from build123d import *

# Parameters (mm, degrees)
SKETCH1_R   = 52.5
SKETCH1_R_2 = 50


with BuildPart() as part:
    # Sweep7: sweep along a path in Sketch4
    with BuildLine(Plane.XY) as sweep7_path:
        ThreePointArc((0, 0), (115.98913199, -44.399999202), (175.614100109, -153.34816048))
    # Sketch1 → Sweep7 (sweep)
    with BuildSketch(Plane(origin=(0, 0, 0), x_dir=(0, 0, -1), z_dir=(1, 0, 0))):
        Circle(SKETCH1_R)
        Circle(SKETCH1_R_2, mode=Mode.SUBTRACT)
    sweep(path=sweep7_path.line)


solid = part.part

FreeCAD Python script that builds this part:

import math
import FreeCAD as App
import Part
import Sketcher
from FreeCAD import Vector
Q = App.Units.Quantity

doc = App.newDocument("Part")
body = doc.addObject("PartDesign::Body", "Body")

# Sketch on YZ plane
sketch1 = doc.addObject("Sketcher::SketchObject", "Sketch")
body.addObject(sketch1)
sketch1.AttachmentSupport = (doc.YZ_Plane, [""])
sketch1.MapMode = "FlatFace"
sketch1.addGeometry([
    Part.Circle(Vector(0, 0, 0), Vector(0, 0, 1), 52),
    Part.Circle(Vector(0, 0, 0), Vector(0, 0, 1), 50),
], False)
sketch1.addConstraint([
    Sketcher.Constraint("Coincident", 0, 3, -1, 1),
    Sketcher.Constraint("Coincident", 1, 3, -1, 1),
    Sketcher.Constraint("Diameter", 0, Q("105 mm")),
    Sketcher.Constraint("Diameter", 1, Q("100 mm")),
])

# Sketch on XY plane
sketch2 = doc.addObject("Sketcher::SketchObject", "Sketch001")
body.addObject(sketch2)
sketch2.AttachmentSupport = (doc.XY_Plane, [""])
sketch2.MapMode = "FlatFace"
sketch2.addGeometry(Part.ArcOfCircle(Part.Circle(Vector(-2, -180, 0), Vector(0, 0, 1), 180), math.radians(9), math.radians(89)), False)
sketch2.addConstraint([
    Sketcher.Constraint("Coincident", 0, 2, -1, 1),
    Sketcher.Constraint("Radius", 0, Q("180 mm")),
    Sketcher.Constraint("DistanceX", -1, 1, 0, 1, Q("175.6141 mm")),
    Sketcher.Constraint("DistanceY", 0, 1, -1, 1, Q("153.34816 mm")),
])
doc.recompute()

additivepipe = doc.addObject("PartDesign::AdditivePipe", "AdditivePipe")
body.addObject(additivepipe)
additivepipe.Profile = sketch1
additivepipe.Spine = (sketch2, ["Edge1"])

doc.recompute()
